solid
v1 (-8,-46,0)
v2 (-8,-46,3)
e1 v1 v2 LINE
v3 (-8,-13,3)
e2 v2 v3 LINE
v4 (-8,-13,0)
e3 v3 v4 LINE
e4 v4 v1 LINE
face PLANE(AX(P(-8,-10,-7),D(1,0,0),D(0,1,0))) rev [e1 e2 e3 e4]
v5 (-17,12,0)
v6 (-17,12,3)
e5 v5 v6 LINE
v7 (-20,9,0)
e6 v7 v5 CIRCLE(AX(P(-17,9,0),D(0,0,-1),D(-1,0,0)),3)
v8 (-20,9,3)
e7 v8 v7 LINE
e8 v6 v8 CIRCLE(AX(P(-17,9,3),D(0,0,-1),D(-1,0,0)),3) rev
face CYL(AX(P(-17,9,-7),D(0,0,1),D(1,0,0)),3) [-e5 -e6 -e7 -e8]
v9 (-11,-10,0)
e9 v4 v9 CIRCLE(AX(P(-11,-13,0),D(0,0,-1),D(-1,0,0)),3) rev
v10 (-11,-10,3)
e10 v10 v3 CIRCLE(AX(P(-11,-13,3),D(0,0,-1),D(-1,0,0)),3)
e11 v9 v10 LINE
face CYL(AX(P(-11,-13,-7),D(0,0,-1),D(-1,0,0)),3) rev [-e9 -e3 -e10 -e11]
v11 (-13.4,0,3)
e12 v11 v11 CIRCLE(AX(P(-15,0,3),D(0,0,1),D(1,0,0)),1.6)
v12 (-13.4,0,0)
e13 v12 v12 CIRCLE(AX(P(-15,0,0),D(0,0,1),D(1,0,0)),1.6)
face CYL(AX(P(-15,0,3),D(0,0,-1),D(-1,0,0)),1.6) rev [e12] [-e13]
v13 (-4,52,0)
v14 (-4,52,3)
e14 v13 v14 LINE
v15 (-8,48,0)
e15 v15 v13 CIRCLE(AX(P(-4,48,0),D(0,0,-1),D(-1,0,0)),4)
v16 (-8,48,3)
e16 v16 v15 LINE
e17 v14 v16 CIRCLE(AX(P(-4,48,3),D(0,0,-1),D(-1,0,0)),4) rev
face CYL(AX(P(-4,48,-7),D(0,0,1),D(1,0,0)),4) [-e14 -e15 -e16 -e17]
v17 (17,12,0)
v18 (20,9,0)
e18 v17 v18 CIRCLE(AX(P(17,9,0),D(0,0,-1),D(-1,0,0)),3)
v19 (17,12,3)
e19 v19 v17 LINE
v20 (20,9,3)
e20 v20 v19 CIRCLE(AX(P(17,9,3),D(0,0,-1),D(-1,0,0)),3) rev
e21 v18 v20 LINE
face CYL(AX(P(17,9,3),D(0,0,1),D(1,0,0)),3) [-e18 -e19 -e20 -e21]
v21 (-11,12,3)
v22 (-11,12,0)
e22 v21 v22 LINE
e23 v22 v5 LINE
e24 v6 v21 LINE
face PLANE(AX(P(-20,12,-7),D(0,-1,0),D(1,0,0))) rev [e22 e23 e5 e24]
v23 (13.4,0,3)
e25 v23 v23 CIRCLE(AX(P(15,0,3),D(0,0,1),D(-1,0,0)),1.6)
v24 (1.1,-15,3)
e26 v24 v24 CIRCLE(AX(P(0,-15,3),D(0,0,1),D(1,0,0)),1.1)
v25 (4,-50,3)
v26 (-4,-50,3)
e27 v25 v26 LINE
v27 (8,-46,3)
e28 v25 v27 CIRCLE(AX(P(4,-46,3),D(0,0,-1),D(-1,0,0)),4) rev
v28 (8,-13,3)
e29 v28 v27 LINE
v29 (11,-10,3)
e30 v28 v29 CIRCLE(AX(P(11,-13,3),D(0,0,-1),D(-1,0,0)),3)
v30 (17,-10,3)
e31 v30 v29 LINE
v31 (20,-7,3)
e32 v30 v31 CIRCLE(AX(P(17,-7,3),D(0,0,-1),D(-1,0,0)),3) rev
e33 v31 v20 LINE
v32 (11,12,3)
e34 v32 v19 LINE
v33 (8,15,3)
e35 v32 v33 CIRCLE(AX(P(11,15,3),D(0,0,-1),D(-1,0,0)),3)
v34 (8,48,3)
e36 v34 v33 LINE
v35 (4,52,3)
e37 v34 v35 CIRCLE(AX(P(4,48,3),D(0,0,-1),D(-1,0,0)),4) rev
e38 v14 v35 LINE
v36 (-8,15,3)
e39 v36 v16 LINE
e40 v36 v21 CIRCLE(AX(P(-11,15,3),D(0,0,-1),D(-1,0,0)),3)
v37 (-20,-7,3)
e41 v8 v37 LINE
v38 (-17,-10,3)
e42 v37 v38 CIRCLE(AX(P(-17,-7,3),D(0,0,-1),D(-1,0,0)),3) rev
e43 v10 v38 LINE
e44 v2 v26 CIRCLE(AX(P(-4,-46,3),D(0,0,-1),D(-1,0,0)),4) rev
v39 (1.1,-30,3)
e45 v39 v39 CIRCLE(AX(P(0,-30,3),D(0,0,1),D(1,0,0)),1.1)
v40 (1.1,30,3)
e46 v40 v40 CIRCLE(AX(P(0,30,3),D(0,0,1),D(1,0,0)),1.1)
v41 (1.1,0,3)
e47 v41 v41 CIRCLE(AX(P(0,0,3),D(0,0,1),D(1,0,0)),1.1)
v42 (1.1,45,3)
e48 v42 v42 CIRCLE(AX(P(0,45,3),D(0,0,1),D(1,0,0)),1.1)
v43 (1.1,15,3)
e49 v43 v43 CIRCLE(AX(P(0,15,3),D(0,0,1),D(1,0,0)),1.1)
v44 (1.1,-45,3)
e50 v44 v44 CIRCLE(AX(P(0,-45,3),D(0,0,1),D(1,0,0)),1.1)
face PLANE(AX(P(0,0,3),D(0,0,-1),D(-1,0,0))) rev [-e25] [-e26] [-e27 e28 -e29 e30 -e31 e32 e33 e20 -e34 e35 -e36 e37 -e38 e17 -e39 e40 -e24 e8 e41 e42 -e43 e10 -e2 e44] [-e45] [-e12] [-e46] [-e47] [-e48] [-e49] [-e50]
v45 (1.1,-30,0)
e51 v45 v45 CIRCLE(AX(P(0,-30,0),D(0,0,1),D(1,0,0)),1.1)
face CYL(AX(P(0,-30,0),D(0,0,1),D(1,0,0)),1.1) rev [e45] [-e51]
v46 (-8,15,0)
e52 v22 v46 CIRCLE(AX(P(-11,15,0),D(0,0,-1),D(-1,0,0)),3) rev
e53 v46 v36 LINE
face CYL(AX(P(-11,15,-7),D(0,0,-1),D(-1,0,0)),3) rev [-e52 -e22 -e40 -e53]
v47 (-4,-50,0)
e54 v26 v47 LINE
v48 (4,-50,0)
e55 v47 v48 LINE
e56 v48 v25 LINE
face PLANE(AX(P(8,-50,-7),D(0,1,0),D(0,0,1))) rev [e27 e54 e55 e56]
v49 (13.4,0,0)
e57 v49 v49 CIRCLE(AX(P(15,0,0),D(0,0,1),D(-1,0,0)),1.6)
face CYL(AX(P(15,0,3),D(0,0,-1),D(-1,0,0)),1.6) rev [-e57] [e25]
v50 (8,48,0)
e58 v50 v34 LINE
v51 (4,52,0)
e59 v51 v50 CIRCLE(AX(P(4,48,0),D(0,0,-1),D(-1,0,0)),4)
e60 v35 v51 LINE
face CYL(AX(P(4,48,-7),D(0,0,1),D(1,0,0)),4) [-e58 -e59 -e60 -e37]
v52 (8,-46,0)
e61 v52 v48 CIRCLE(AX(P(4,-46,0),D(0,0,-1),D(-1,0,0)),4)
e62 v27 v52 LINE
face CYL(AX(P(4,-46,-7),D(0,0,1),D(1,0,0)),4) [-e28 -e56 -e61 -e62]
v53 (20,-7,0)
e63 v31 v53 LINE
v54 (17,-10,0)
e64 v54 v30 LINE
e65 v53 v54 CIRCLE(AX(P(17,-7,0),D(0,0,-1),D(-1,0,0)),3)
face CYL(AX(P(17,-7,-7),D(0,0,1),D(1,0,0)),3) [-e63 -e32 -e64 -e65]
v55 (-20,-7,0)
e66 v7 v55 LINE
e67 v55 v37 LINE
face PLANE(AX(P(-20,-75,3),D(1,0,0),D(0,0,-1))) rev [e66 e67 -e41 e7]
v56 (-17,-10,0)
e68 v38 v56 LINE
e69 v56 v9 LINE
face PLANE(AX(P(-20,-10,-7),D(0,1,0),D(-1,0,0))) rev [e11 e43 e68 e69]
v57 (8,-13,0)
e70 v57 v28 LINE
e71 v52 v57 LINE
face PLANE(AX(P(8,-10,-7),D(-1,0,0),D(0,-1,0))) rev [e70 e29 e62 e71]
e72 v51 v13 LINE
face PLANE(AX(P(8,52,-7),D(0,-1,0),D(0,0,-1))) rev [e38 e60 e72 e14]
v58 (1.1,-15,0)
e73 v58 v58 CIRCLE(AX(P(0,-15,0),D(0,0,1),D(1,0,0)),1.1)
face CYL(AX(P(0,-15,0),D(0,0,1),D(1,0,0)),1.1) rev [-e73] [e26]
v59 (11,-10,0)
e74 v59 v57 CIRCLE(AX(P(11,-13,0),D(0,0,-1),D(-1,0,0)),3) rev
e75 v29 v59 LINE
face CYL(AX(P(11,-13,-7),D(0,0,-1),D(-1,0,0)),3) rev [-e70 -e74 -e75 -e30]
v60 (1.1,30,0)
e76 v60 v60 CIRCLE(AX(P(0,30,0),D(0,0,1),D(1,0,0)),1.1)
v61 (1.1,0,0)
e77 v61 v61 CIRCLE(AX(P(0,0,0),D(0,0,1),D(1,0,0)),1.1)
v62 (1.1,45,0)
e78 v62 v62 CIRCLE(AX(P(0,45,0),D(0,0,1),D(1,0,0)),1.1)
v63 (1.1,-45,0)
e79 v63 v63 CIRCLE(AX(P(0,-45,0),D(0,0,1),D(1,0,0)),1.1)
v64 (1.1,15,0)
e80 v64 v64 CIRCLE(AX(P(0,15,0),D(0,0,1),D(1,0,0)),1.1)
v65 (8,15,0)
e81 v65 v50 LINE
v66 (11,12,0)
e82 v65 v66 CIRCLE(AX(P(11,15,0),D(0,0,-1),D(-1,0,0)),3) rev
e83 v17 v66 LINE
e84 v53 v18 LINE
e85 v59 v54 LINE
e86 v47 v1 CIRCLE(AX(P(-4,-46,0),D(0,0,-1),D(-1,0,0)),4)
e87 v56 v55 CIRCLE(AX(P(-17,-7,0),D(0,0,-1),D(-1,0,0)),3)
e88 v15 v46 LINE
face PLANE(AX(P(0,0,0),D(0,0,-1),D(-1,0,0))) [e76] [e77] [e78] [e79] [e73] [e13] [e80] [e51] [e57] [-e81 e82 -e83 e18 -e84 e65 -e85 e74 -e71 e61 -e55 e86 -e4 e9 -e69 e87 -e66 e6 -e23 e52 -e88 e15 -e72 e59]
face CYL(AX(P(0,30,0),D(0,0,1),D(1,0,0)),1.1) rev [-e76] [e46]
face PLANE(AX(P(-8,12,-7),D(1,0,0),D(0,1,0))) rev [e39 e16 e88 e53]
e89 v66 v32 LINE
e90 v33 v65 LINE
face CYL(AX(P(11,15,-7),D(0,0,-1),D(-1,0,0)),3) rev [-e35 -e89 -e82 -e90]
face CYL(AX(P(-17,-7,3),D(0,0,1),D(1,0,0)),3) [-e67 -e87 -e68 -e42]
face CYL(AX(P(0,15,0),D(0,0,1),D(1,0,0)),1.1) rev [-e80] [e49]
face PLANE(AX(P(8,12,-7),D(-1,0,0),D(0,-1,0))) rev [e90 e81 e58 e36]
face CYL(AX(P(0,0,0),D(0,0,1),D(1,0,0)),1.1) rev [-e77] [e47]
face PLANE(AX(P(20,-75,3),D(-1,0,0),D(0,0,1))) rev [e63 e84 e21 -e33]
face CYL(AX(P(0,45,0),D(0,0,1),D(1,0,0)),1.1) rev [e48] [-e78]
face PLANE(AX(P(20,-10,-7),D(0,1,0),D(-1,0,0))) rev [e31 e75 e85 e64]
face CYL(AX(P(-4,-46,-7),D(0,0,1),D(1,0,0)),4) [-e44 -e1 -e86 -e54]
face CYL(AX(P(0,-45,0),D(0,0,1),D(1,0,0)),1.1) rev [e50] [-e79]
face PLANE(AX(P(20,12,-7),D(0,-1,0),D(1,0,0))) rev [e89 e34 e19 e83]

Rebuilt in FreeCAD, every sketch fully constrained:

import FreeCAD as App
import Part
import Sketcher
Q = App.Units.Quantity


def edges_at(feature, points):
    """Names of the edges that pass closest to the given points."""
    edges = feature.Shape.Edges
    near = lambda p: min(range(len(edges)), key=lambda i: edges[i].distToShape(Part.Vertex(*p))[0])
    return sorted({f"Edge{near(p) + 1}" for p in points})

doc = App.newDocument("Part")
body = doc.addObject("PartDesign::Body", "Body")

# Sketch on XY plane
sketch1 = body.newObject("Sketcher::SketchObject", "Sketch")
sketch1.AttachmentSupport = (doc.getObject("XY_Plane"), [""])
sketch1.MapMode = "FlatFace"
sketch1.addGeometry([
    Part.LineSegment(App.Vector(-20, 75, 0), App.Vector(-20, -75, 0)),  # 0
    Part.LineSegment(App.Vector(-20, -75, 0), App.Vector(20, -75, 0)),  # 1
    Part.LineSegment(App.Vector(20, -75, 0), App.Vector(20, 75, 0)),  # 2
    Part.LineSegment(App.Vector(20, 75, 0), App.Vector(-20, 75, 0)),  # 3
    Part.Circle(App.Vector(-15, 0, 0), App.Vector(0, 0, 1), 1.6),  # 4
    Part.Circle(App.Vector(15, 0, 0), App.Vector(0, 0, 1), 1.6),  # 5
], False)
sketch1.addConstraint([
    Sketcher.Constraint("Coincident", 0, 2, 1, 1),
    Sketcher.Constraint("Coincident", 1, 2, 2, 1),
    Sketcher.Constraint("Coincident", 2, 2, 3, 1),
    Sketcher.Constraint("Coincident", 3, 2, 0, 1),
    Sketcher.Constraint("Vertical", 0),
    Sketcher.Constraint("Horizontal", 1),
    Sketcher.Constraint("Vertical", 2),
    Sketcher.Constraint("Horizontal", 3),
    Sketcher.Constraint("Equal", 4, 5),
    Sketcher.Constraint("Symmetric", 4, 3, 5, 3, -1, 1),
    Sketcher.Constraint("Symmetric", 0, 2, 2, 2, -1, 1),
    Sketcher.Constraint("PointOnObject", 4, 3, -1),
    Sketcher.Constraint("Diameter", 4, Q("3.2 mm")),
    Sketcher.Constraint("DistanceX", 1, 1, 1, 2, Q("40 mm")),
    Sketcher.Constraint("DistanceY", 0, 2, 0, 1, Q("150 mm")),
    Sketcher.Constraint("DistanceX", 4, 3, -1, 1, Q("15 mm")),
])
pad1 = body.newObject("PartDesign::Pad", "Pad")
pad1.Profile = sketch1
pad1.Length = 3

# Sketch on XY plane
sketch2 = body.newObject("Sketcher::SketchObject", "Sketch001")
sketch2.AttachmentSupport = (doc.getObject("XY_Plane"), [""])
sketch2.MapMode = "FlatFace"
sketch2.AttachmentOffset = App.Placement(App.Vector(0, 0, 3), App.Rotation())
sketch2.addGeometry([
    Part.Circle(App.Vector(0, 30, 0), App.Vector(0, 0, 1), 1.1),  # 0
    Part.Circle(App.Vector(0, 45, 0), App.Vector(0, 0, 1), 1.1),  # 1
    Part.Circle(App.Vector(0, 60, 0), App.Vector(0, 0, 1), 1.1),  # 2
    Part.Circle(App.Vector(0, 15, 0), App.Vector(0, 0, 1), 1.1),  # 3
    Part.Circle(App.Vector(0, -15, 0), App.Vector(0, 0, 1), 1.1),  # 4
    Part.Circle(App.Vector(0, 0, 0), App.Vector(0, 0, 1), 1.1),  # 5
    Part.Circle(App.Vector(0, -30, 0), App.Vector(0, 0, 1), 1.1),  # 6
    Part.Circle(App.Vector(0, -45, 0), App.Vector(0, 0, 1), 1.1),  # 7
    Part.Circle(App.Vector(0, -60, 0), App.Vector(0, 0, 1), 1.1),  # 8
], False)
sketch2.addConstraint([
    Sketcher.Constraint("Coincident", 5, 3, -1, 1),
    Sketcher.Constraint("Equal", 0, 1),
    Sketcher.Constraint("Equal", 1, 2),
    Sketcher.Constraint("Equal", 2, 3),
    Sketcher.Constraint("Equal", 3, 4),
    Sketcher.Constraint("Equal", 4, 5),
    Sketcher.Constraint("Equal", 5, 6),
    Sketcher.Constraint("Equal", 6, 7),
    Sketcher.Constraint("Equal", 7, 8),
    Sketcher.Constraint("Symmetric", 3, 3, 4, 3, -1, 1),
    Sketcher.Constraint("Symmetric", 0, 3, 6, 3, -1, 1),
    Sketcher.Constraint("Symmetric", 1, 3, 7, 3, -1, 1),
    Sketcher.Constraint("Symmetric", 2, 3, 8, 3, -1, 1),
    Sketcher.Constraint("PointOnObject", 0, 3, -2),
    Sketcher.Constraint("PointOnObject", 1, 3, -2),
    Sketcher.Constraint("PointOnObject", 2, 3, -2),
    Sketcher.Constraint("PointOnObject", 3, 3, -2),
    Sketcher.Constraint("Diameter", 0, Q("2.2 mm")),
    Sketcher.Constraint("DistanceY", -1, 1, 0, 3, Q("30 mm")),
    Sketcher.Constraint("DistanceY", -1, 1, 1, 3, Q("45 mm")),
    Sketcher.Constraint("DistanceY", -1, 1, 2, 3, Q("60 mm")),
    Sketcher.Constraint("DistanceY", -1, 1, 3, 3, Q("15 mm")),
])
pocket1 = body.newObject("PartDesign::Pocket", "Pocket")
pocket1.Profile = sketch2
pocket1.Type = "ThroughAll"

# Sketch on XY plane
sketch3 = body.newObject("Sketcher::SketchObject", "Sketch002")
sketch3.AttachmentSupport = (doc.getObject("XY_Plane"), [""])
sketch3.MapMode = "FlatFace"
sketch3.AttachmentOffset = App.Placement(App.Vector(0, 0, 3), App.Rotation())
sketch3.addGeometry([
    Part.LineSegment(App.Vector(-20, -57, 0), App.Vector(-20, -75, 0)),
    Part.LineSegment(App.Vector(-20, -75, 0), App.Vector(20, -75, 0)),
    Part.LineSegment(App.Vector(20, -75, 0), App.Vector(20, -57, 0)),
    Part.LineSegment(App.Vector(20, -57, 0), App.Vector(-20, -57, 0)),
], False)
sketch3.addConstraint([
    Sketcher.Constraint("Coincident", 0, 2, 1, 1),
    Sketcher.Constraint("Coincident", 1, 2, 2, 1),
    Sketcher.Constraint("Coincident", 2, 2, 3, 1),
    Sketcher.Constraint("Coincident", 3, 2, 0, 1),
    Sketcher.Constraint("Vertical", 0),
    Sketcher.Constraint("Horizontal", 1),
    Sketcher.Constraint("Vertical", 2),
    Sketcher.Constraint("Horizontal", 3),
    Sketcher.Constraint("DistanceX", 1, 1, 1, 2, Q("40 mm")),
    Sketcher.Constraint("DistanceY", 0, 2, 0, 1, Q("18 mm")),
    Sketcher.Constraint("DistanceX", 0, 2, -1, 1, Q("20 mm")),
    Sketcher.Constraint("DistanceY", 0, 2, -1, 1, Q("75 mm")),
])
pocket2 = body.newObject("PartDesign::Pocket", "Pocket001")
pocket2.Profile = sketch3
pocket2.Length = 10

# Sketch on XY plane
sketch4 = body.newObject("Sketcher::SketchObject", "Sketch003")
sketch4.AttachmentSupport = (doc.getObject("XY_Plane"), [""])
sketch4.MapMode = "FlatFace"
sketch4.AttachmentOffset = App.Placement(App.Vector(0, 0, 3), App.Rotation())
sketch4.addGeometry([
    Part.LineSegment(App.Vector(-20, 87, 0), App.Vector(-20, 75, 0)),
    Part.LineSegment(App.Vector(-20, 75, 0), App.Vector(20, 75, 0)),
    Part.LineSegment(App.Vector(20, 75, 0), App.Vector(20, 87, 0)),
    Part.LineSegment(App.Vector(20, 87, 0), App.Vector(-20, 87, 0)),
], False)
sketch4.addConstraint([
    Sketcher.Constraint("Coincident", 0, 2, 1, 1),
    Sketcher.Constraint("Coincident", 1, 2, 2, 1),
    Sketcher.Constraint("Coincident", 2, 2, 3, 1),
    Sketcher.Constraint("Coincident", 3, 2, 0, 1),
    Sketcher.Constraint("Vertical", 0),
    Sketcher.Constraint("Horizontal", 1),
    Sketcher.Constraint("Vertical", 2),
    Sketcher.Constraint("Horizontal", 3),
    Sketcher.Constraint("DistanceX", 1, 1, 1, 2, Q("40 mm")),
    Sketcher.Constraint("DistanceY", 0, 2, 0, 1, Q("12 mm")),
    Sketcher.Constraint("DistanceX", 0, 2, -1, 1, Q("20 mm")),
    Sketcher.Constraint("DistanceY", -1, 1, 0, 2, Q("75 mm")),
])
pad2 = body.newObject("PartDesign::Pad", "Pad001")
pad2.Profile = sketch4
pad2.Length = 3
pad2.Reversed = True

# Sketch on XY plane
sketch5 = body.newObject("Sketcher::SketchObject", "Sketch004")
sketch5.AttachmentSupport = (doc.getObject("XY_Plane"), [""])
sketch5.MapMode = "FlatFace"
sketch5.AttachmentOffset = App.Placement(App.Vector(0, 0, 3), App.Rotation())
sketch5.addGeometry(Part.Circle(App.Vector(0, 75, 0), App.Vector(0, 0, 1), 1.1), False)
sketch5.addConstraint([
    Sketcher.Constraint("PointOnObject", 0, 3, -2),
    Sketcher.Constraint("Diameter", 0, Q("2.2 mm")),
    Sketcher.Constraint("DistanceY", -1, 1, 0, 3, Q("75 mm")),
])
pocket3 = body.newObject("PartDesign::Pocket", "Pocket002")
pocket3.Profile = sketch5
pocket3.Length = 10

# Sketch on XY plane
sketch6 = body.newObject("Sketcher::SketchObject", "Sketch005")
sketch6.AttachmentSupport = (doc.getObject("XY_Plane"), [""])
sketch6.MapMode = "FlatFace"
sketch6.AttachmentOffset = App.Placement(App.Vector(0, 0, 3), App.Rotation())
sketch6.addGeometry([
    Part.LineSegment(App.Vector(-20, 87, 0), App.Vector(-20, 12, 0)),  # 0
    Part.LineSegment(App.Vector(-20, 12, 0), App.Vector(-8, 12, 0)),  # 1
    Part.LineSegment(App.Vector(-8, 12, 0), App.Vector(-8, 87, 0)),  # 2
    Part.LineSegment(App.Vector(-8, 87, 0), App.Vector(-20, 87, 0)),  # 3
    Part.LineSegment(App.Vector(-20, -10, 0), App.Vector(-20, -57, 0)),  # 4
    Part.LineSegment(App.Vector(-20, -57, 0), App.Vector(-8, -57, 0)),  # 5
    Part.LineSegment(App.Vector(-8, -57, 0), App.Vector(-8, -10, 0)),  # 6
    Part.LineSegment(App.Vector(-8, -10, 0), App.Vector(-20, -10, 0)),  # 7
    Part.LineSegment(App.Vector(8, -10, 0), App.Vector(8, -57, 0)),  # 8
    Part.LineSegment(App.Vector(8, -57, 0), App.Vector(20, -57, 0)),  # 9
    Part.LineSegment(App.Vector(20, -57, 0), App.Vector(20, -10, 0)),  # 10
    Part.LineSegment(App.Vector(20, -10, 0), App.Vector(8, -10, 0)),  # 11
    Part.LineSegment(App.Vector(8, 87, 0), App.Vector(8, 12, 0)),  # 12
    Part.LineSegment(App.Vector(8, 12, 0), App.Vector(20, 12, 0)),  # 13
    Part.LineSegment(App.Vector(20, 12, 0), App.Vector(20, 87, 0)),  # 14
    Part.LineSegment(App.Vector(20, 87, 0), App.Vector(8, 87, 0)),  # 15
], False)
sketch6.addConstraint([
    Sketcher.Constraint("Coincident", 0, 2, 1, 1),
    Sketcher.Constraint("Coincident", 1, 2, 2, 1),
    Sketcher.Constraint("Coincident", 2, 2, 3, 1),
    Sketcher.Constraint("Coincident", 3, 2, 0, 1),
    Sketcher.Constraint("Coincident", 4, 2, 5, 1),
    Sketcher.Constraint("Coincident", 5, 2, 6, 1),
    Sketcher.Constraint("Coincident", 6, 2, 7, 1),
    Sketcher.Constraint("Coincident", 7, 2, 4, 1),
    Sketcher.Constraint("Coincident", 8, 2, 9, 1),
    Sketcher.Constraint("Coincident", 9, 2, 10, 1),
    Sketcher.Constraint("Coincident", 10, 2, 11, 1),
    Sketcher.Constraint("Coincident", 11, 2, 8, 1),
    Sketcher.Constraint("Coincident", 12, 2, 13, 1),
    Sketcher.Constraint("Coincident", 13, 2, 14, 1),
    Sketcher.Constraint("Coincident", 14, 2, 15, 1),
    Sketcher.Constraint("Coincident", 15, 2, 12, 1),
    Sketcher.Constraint("Vertical", 0),
    Sketcher.Constraint("Horizontal", 1),
    Sketcher.Constraint("Vertical", 2),
    Sketcher.Constraint("Horizontal", 3),
    Sketcher.Constraint("Vertical", 4),
    Sketcher.Constraint("Horizontal", 5),
    Sketcher.Constraint("Vertical", 6),
    Sketcher.Constraint("Horizontal", 7),
    Sketcher.Constraint("Vertical", 8),
    Sketcher.Constraint("Horizontal", 9),
    Sketcher.Constraint("Vertical", 10),
    Sketcher.Constraint("Horizontal", 11),
    Sketcher.Constraint("Vertical", 12),
    Sketcher.Constraint("Horizontal", 13),
    Sketcher.Constraint("Vertical", 14),
    Sketcher.Constraint("Horizontal", 15),
    Sketcher.Constraint("Symmetric", 5, 2, 8, 2, -2),
    Sketcher.Constraint("Symmetric", 7, 2, 10, 2, -2),
    Sketcher.Constraint("Symmetric", 1, 2, 12, 2, -2),
    Sketcher.Constraint("Symmetric", 3, 2, 14, 2, -2),
    Sketcher.Constraint("Vertical", 3, 2, 4, 2),
    Sketcher.Constraint("Vertical", 2, 2, 5, 2),
    Sketcher.Constraint("DistanceX", 1, 1, 1, 2, Q("12 mm")),
    Sketcher.Constraint("DistanceY", 0, 2, 0, 1, Q("75 mm")),
    Sketcher.Constraint("DistanceY", 4, 2, 4, 1, Q("47 mm")),
    Sketcher.Constraint("DistanceX", 0, 2, -1, 1, Q("20 mm")),
    Sketcher.Constraint("DistanceY", -1, 1, 0, 2, Q("12 mm")),
    Sketcher.Constraint("DistanceY", 4, 2, -1, 1, Q("57 mm")),
])
pocket4 = body.newObject("PartDesign::Pocket", "Pocket003")
pocket4.Profile = sketch6
pocket4.Length = 10
doc.recompute()

fillet = body.newObject("PartDesign::Fillet", "Fillet")
fillet.Base = (pocket4, edges_at(pocket4, [
    (-8, 87, 1.5),
    (8, 87, 1.5),
    (-8, -57, 1.5),
    (8, -57, 1.5),
    (20, 12, 1.5),
    (8, 12, 1.5),
    (8, -10, 1.5),
    (20, -10, 1.5),
    (-20, -10, 1.5),
    (-8, -10, 1.5),
    (-20, 12, 1.5),
    (-8, 12, 1.5),
]))
fillet.Radius = 3

# Sketch on XY plane
sketch7 = body.newObject("Sketcher::SketchObject", "Sketch006")
sketch7.AttachmentSupport = (doc.getObject("XY_Plane"), [""])
sketch7.MapMode = "FlatFace"
sketch7.AttachmentOffset = App.Placement(App.Vector(0, 0, 3), App.Rotation())
sketch7.addGeometry([
    Part.LineSegment(App.Vector(-8, 94, 0), App.Vector(-8, 52, 0)),  # 0
    Part.LineSegment(App.Vector(-8, 52, 0), App.Vector(8, 52, 0)),  # 1
    Part.LineSegment(App.Vector(8, 52, 0), App.Vector(8, 94, 0)),  # 2
    Part.LineSegment(App.Vector(8, 94, 0), App.Vector(-8, 94, 0)),  # 3
    Part.LineSegment(App.Vector(-8, -50, 0), App.Vector(-8, -71, 0)),  # 4
    Part.LineSegment(App.Vector(-8, -71, 0), App.Vector(8, -71, 0)),  # 5
    Part.LineSegment(App.Vector(8, -71, 0), App.Vector(8, -50, 0)),  # 6
    Part.LineSegment(App.Vector(8, -50, 0), App.Vector(-8, -50, 0)),  # 7
], False)
sketch7.addConstraint([
    Sketcher.Constraint("Coincident", 0, 2, 1, 1),
    Sketcher.Constraint("Coincident", 1, 2, 2, 1),
    Sketcher.Constraint("Coincident", 2, 2, 3, 1),
    Sketcher.Constraint("Coincident", 3, 2, 0, 1),
    Sketcher.Constraint("Coincident", 4, 2, 5, 1),
    Sketcher.Constraint("Coincident", 5, 2, 6, 1),
    Sketcher.Constraint("Coincident", 6, 2, 7, 1),
    Sketcher.Constraint("Coincident", 7, 2, 4, 1),
    Sketcher.Constraint("Vertical", 0),
    Sketcher.Constraint("Horizontal", 1),
    Sketcher.Constraint("Vertical", 2),
    Sketcher.Constraint("Horizontal", 3),
    Sketcher.Constraint("Vertical", 4),
    Sketcher.Constraint("Horizontal", 5),
    Sketcher.Constraint("Vertical", 6),
    Sketcher.Constraint("Horizontal", 7),
    Sketcher.Constraint("Vertical", 3, 2, 4, 2),
    Sketcher.Constraint("Vertical", 2, 2, 5, 2),
    Sketcher.Constraint("DistanceX", 1, 1, 1, 2, Q("16 mm")),
    Sketcher.Constraint("DistanceX", 0, 2, -1, 1, Q("8 mm")),
    Sketcher.Constraint("DistanceY", -1, 1, 0, 2, Q("52 mm")),
    Sketcher.Constraint("DistanceY", 6, 2, -1, 1, Q("50 mm")),
    Sketcher.Constraint("DistanceY", 4, 2, 3, 2, Q("165.557099 mm")),
    Sketcher.Constraint("DistanceY", 0, 2, 0, 1, Q("42.139164 mm")),
])
pocket5 = body.newObject("PartDesign::Pocket", "Pocket004")
pocket5.Profile = sketch7
pocket5.Length = 10
doc.recompute()

fillet2 = body.newObject("PartDesign::Fillet", "Fillet001")
fillet2.Base = (pocket5, edges_at(pocket5, [
    (8, 52, 1.5),
    (-8, 52, 1.5),
    (8, -50, 1.5),
    (-8, -50, 1.5),
]))
fillet2.Radius = 4

doc.recompute()
